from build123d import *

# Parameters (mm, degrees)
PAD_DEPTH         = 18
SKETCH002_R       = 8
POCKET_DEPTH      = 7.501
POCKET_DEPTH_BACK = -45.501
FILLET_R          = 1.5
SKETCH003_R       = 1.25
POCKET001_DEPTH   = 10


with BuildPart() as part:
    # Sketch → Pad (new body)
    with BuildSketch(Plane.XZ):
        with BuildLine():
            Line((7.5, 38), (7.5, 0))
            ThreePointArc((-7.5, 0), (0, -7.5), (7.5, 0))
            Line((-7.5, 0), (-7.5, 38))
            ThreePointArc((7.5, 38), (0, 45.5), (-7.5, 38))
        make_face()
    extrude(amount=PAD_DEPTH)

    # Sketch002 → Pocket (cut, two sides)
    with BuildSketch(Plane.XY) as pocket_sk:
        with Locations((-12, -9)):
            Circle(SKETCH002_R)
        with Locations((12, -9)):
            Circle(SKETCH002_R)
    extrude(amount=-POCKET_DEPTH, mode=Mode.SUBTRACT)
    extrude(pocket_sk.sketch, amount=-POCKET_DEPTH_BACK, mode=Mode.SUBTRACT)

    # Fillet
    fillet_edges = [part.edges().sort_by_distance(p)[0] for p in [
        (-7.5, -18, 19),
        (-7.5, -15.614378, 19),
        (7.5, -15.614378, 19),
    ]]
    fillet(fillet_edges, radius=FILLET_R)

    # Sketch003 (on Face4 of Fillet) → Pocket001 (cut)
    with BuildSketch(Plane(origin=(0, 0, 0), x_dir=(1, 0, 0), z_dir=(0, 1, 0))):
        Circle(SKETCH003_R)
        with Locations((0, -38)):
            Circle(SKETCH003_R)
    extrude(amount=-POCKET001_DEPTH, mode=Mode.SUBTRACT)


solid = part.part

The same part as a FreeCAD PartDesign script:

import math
import FreeCAD as App
import Part
import Sketcher
Q = App.Units.Quantity


def edges_at(feature, points):
    """Names of the edges that pass closest to the given points."""
    edges = feature.Shape.Edges
    near = lambda p: min(range(len(edges)), key=lambda i: edges[i].distToShape(Part.Vertex(*p))[0])
    return sorted({f"Edge{near(p) + 1}" for p in points})

doc = App.newDocument("Part")
params = doc.addObject("Spreadsheet::Sheet", "Params")
for row, (alias, value) in enumerate([
    ("sketch1_radius", "7.5 mm"),
    ("sketch1_height", "38 mm"),
    ("pad1_length", "18 mm"),
    ("sketch2_diameter", "16 mm"),
    ("fillet_radius", "1.5 mm"),
    ("sketch3_diameter", "2.5 mm"),
    ("pocket2_length", "10 mm"),
], start=1):
    params.set(f"A{row}", alias)
    params.set(f"B{row}", "=" + value)
    params.setAlias(f"B{row}", alias)

body = doc.addObject("PartDesign::Body", "Body")

sketch1 = body.newObject("Sketcher::SketchObject", "Sketch")
sketch1.AttachmentSupport = (doc.getObject("XZ_Plane"), [""])
sketch1.MapMode = "FlatFace"
sketch1.addGeometry([
    Part.LineSegment(App.Vector(7.5, 0, 0), App.Vector(7.5, 38, 0)),
    Part.ArcOfCircle(Part.Circle(App.Vector(0, 38, 0), App.Vector(0, 0, 1), 7.5), math.radians(0), math.radians(180)),
    Part.LineSegment(App.Vector(-7.5, 38, 0), App.Vector(-7.5, 0, 0)),
    Part.ArcOfCircle(Part.Circle(App.Vector(0, 0, 0), App.Vector(0, 0, 1), 7.5), math.radians(180), math.radians(360)),
], False)
sketch1.addConstraint([
    Sketcher.Constraint("Tangent", 0, 2, 1, 1),
    Sketcher.Constraint("Tangent", 1, 2, 2, 1),
    Sketcher.Constraint("Tangent", 2, 2, 3, 1),
    Sketcher.Constraint("Tangent", 3, 2, 0, 1),
    Sketcher.Constraint("Vertical", 0),
    Sketcher.Constraint("Vertical", 2),
    Sketcher.Constraint("Coincident", 3, 3, -1, 1),
    Sketcher.Constraint("Radius", 1, Q("7.5 mm")),
    Sketcher.Constraint("DistanceY", 0, 1, 0, 2, Q("38 mm")),
])
sketch1.setExpression("Constraints[7]", "Params.sketch1_radius")
sketch1.setExpression("Constraints[8]", "Params.sketch1_height")
pad1 = body.newObject("PartDesign::Pad", "Pad")
pad1.Profile = sketch1
pad1.setExpression("Length", "Params.pad1_length")

sketch2 = body.newObject("Sketcher::SketchObject", "Sketch001")
sketch2.AttachmentSupport = (doc.getObject("XY_Plane"), [""])
sketch2.MapMode = "FlatFace"
sketch2.addGeometry([
    Part.Circle(App.Vector(-12, -9, 0), App.Vector(0, 0, 1), 8),
    Part.Circle(App.Vector(12, -9, 0), App.Vector(0, 0, 1), 8),
], False)
sketch2.addConstraint([
    Sketcher.Constraint("Equal", 0, 1),
    Sketcher.Constraint("Symmetric", 0, 3, 1, 3, -2),
    Sketcher.Constraint("Diameter", 0, Q("16 mm")),
    Sketcher.Constraint("DistanceX", 0, 3, -1, 1, Q("12 mm")),
    Sketcher.Constraint("DistanceY", 0, 3, -1, 1, Q("9 mm")),
])
sketch2.setExpression("Constraints[2]", "Params.sketch2_diameter")
pocket1 = body.newObject("PartDesign::Pocket", "Pocket")
pocket1.Profile = sketch2
pocket1.Type = "ThroughAll"
pocket1.Midplane = True
doc.recompute()

fillet = body.newObject("PartDesign::Fillet", "Fillet")
fillet.Base = (pocket1, edges_at(pocket1, [(-7.5, -18, 19), (-7.5, -15.614, 19), (7.5, -15.614, 19)]))
fillet.setExpression("Radius", "Params.fillet_radius")

sketch3 = body.newObject("Sketcher::SketchObject", "Sketch002")
sketch3.AttachmentSupport = (doc.getObject("XZ_Plane"), [""])
sketch3.MapMode = "FlatFace"
sketch3.addGeometry([
    Part.Circle(App.Vector(0, 0, 0), App.Vector(0, 0, 1), 1.25),
    Part.Circle(App.Vector(0, 38, 0), App.Vector(0, 0, 1), 1.25),
], False)
sketch3.addConstraint([
    Sketcher.Constraint("Coincident", 0, 3, -1, 1),
    Sketcher.Constraint("Equal", 0, 1),
    Sketcher.Constraint("PointOnObject", 1, 3, -2),
    Sketcher.Constraint("Diameter", 0, Q("2.5 mm")),
    Sketcher.Constraint("DistanceY", -1, 1, 1, 3, Q("38 mm")),
])
sketch3.setExpression("Constraints[3]", "Params.sketch3_diameter")
pocket2 = body.newObject("PartDesign::Pocket", "Pocket001")
pocket2.Profile = sketch3
pocket2.setExpression("Length", "Params.pocket2_length")
pocket2.Reversed = True

doc.recompute()
